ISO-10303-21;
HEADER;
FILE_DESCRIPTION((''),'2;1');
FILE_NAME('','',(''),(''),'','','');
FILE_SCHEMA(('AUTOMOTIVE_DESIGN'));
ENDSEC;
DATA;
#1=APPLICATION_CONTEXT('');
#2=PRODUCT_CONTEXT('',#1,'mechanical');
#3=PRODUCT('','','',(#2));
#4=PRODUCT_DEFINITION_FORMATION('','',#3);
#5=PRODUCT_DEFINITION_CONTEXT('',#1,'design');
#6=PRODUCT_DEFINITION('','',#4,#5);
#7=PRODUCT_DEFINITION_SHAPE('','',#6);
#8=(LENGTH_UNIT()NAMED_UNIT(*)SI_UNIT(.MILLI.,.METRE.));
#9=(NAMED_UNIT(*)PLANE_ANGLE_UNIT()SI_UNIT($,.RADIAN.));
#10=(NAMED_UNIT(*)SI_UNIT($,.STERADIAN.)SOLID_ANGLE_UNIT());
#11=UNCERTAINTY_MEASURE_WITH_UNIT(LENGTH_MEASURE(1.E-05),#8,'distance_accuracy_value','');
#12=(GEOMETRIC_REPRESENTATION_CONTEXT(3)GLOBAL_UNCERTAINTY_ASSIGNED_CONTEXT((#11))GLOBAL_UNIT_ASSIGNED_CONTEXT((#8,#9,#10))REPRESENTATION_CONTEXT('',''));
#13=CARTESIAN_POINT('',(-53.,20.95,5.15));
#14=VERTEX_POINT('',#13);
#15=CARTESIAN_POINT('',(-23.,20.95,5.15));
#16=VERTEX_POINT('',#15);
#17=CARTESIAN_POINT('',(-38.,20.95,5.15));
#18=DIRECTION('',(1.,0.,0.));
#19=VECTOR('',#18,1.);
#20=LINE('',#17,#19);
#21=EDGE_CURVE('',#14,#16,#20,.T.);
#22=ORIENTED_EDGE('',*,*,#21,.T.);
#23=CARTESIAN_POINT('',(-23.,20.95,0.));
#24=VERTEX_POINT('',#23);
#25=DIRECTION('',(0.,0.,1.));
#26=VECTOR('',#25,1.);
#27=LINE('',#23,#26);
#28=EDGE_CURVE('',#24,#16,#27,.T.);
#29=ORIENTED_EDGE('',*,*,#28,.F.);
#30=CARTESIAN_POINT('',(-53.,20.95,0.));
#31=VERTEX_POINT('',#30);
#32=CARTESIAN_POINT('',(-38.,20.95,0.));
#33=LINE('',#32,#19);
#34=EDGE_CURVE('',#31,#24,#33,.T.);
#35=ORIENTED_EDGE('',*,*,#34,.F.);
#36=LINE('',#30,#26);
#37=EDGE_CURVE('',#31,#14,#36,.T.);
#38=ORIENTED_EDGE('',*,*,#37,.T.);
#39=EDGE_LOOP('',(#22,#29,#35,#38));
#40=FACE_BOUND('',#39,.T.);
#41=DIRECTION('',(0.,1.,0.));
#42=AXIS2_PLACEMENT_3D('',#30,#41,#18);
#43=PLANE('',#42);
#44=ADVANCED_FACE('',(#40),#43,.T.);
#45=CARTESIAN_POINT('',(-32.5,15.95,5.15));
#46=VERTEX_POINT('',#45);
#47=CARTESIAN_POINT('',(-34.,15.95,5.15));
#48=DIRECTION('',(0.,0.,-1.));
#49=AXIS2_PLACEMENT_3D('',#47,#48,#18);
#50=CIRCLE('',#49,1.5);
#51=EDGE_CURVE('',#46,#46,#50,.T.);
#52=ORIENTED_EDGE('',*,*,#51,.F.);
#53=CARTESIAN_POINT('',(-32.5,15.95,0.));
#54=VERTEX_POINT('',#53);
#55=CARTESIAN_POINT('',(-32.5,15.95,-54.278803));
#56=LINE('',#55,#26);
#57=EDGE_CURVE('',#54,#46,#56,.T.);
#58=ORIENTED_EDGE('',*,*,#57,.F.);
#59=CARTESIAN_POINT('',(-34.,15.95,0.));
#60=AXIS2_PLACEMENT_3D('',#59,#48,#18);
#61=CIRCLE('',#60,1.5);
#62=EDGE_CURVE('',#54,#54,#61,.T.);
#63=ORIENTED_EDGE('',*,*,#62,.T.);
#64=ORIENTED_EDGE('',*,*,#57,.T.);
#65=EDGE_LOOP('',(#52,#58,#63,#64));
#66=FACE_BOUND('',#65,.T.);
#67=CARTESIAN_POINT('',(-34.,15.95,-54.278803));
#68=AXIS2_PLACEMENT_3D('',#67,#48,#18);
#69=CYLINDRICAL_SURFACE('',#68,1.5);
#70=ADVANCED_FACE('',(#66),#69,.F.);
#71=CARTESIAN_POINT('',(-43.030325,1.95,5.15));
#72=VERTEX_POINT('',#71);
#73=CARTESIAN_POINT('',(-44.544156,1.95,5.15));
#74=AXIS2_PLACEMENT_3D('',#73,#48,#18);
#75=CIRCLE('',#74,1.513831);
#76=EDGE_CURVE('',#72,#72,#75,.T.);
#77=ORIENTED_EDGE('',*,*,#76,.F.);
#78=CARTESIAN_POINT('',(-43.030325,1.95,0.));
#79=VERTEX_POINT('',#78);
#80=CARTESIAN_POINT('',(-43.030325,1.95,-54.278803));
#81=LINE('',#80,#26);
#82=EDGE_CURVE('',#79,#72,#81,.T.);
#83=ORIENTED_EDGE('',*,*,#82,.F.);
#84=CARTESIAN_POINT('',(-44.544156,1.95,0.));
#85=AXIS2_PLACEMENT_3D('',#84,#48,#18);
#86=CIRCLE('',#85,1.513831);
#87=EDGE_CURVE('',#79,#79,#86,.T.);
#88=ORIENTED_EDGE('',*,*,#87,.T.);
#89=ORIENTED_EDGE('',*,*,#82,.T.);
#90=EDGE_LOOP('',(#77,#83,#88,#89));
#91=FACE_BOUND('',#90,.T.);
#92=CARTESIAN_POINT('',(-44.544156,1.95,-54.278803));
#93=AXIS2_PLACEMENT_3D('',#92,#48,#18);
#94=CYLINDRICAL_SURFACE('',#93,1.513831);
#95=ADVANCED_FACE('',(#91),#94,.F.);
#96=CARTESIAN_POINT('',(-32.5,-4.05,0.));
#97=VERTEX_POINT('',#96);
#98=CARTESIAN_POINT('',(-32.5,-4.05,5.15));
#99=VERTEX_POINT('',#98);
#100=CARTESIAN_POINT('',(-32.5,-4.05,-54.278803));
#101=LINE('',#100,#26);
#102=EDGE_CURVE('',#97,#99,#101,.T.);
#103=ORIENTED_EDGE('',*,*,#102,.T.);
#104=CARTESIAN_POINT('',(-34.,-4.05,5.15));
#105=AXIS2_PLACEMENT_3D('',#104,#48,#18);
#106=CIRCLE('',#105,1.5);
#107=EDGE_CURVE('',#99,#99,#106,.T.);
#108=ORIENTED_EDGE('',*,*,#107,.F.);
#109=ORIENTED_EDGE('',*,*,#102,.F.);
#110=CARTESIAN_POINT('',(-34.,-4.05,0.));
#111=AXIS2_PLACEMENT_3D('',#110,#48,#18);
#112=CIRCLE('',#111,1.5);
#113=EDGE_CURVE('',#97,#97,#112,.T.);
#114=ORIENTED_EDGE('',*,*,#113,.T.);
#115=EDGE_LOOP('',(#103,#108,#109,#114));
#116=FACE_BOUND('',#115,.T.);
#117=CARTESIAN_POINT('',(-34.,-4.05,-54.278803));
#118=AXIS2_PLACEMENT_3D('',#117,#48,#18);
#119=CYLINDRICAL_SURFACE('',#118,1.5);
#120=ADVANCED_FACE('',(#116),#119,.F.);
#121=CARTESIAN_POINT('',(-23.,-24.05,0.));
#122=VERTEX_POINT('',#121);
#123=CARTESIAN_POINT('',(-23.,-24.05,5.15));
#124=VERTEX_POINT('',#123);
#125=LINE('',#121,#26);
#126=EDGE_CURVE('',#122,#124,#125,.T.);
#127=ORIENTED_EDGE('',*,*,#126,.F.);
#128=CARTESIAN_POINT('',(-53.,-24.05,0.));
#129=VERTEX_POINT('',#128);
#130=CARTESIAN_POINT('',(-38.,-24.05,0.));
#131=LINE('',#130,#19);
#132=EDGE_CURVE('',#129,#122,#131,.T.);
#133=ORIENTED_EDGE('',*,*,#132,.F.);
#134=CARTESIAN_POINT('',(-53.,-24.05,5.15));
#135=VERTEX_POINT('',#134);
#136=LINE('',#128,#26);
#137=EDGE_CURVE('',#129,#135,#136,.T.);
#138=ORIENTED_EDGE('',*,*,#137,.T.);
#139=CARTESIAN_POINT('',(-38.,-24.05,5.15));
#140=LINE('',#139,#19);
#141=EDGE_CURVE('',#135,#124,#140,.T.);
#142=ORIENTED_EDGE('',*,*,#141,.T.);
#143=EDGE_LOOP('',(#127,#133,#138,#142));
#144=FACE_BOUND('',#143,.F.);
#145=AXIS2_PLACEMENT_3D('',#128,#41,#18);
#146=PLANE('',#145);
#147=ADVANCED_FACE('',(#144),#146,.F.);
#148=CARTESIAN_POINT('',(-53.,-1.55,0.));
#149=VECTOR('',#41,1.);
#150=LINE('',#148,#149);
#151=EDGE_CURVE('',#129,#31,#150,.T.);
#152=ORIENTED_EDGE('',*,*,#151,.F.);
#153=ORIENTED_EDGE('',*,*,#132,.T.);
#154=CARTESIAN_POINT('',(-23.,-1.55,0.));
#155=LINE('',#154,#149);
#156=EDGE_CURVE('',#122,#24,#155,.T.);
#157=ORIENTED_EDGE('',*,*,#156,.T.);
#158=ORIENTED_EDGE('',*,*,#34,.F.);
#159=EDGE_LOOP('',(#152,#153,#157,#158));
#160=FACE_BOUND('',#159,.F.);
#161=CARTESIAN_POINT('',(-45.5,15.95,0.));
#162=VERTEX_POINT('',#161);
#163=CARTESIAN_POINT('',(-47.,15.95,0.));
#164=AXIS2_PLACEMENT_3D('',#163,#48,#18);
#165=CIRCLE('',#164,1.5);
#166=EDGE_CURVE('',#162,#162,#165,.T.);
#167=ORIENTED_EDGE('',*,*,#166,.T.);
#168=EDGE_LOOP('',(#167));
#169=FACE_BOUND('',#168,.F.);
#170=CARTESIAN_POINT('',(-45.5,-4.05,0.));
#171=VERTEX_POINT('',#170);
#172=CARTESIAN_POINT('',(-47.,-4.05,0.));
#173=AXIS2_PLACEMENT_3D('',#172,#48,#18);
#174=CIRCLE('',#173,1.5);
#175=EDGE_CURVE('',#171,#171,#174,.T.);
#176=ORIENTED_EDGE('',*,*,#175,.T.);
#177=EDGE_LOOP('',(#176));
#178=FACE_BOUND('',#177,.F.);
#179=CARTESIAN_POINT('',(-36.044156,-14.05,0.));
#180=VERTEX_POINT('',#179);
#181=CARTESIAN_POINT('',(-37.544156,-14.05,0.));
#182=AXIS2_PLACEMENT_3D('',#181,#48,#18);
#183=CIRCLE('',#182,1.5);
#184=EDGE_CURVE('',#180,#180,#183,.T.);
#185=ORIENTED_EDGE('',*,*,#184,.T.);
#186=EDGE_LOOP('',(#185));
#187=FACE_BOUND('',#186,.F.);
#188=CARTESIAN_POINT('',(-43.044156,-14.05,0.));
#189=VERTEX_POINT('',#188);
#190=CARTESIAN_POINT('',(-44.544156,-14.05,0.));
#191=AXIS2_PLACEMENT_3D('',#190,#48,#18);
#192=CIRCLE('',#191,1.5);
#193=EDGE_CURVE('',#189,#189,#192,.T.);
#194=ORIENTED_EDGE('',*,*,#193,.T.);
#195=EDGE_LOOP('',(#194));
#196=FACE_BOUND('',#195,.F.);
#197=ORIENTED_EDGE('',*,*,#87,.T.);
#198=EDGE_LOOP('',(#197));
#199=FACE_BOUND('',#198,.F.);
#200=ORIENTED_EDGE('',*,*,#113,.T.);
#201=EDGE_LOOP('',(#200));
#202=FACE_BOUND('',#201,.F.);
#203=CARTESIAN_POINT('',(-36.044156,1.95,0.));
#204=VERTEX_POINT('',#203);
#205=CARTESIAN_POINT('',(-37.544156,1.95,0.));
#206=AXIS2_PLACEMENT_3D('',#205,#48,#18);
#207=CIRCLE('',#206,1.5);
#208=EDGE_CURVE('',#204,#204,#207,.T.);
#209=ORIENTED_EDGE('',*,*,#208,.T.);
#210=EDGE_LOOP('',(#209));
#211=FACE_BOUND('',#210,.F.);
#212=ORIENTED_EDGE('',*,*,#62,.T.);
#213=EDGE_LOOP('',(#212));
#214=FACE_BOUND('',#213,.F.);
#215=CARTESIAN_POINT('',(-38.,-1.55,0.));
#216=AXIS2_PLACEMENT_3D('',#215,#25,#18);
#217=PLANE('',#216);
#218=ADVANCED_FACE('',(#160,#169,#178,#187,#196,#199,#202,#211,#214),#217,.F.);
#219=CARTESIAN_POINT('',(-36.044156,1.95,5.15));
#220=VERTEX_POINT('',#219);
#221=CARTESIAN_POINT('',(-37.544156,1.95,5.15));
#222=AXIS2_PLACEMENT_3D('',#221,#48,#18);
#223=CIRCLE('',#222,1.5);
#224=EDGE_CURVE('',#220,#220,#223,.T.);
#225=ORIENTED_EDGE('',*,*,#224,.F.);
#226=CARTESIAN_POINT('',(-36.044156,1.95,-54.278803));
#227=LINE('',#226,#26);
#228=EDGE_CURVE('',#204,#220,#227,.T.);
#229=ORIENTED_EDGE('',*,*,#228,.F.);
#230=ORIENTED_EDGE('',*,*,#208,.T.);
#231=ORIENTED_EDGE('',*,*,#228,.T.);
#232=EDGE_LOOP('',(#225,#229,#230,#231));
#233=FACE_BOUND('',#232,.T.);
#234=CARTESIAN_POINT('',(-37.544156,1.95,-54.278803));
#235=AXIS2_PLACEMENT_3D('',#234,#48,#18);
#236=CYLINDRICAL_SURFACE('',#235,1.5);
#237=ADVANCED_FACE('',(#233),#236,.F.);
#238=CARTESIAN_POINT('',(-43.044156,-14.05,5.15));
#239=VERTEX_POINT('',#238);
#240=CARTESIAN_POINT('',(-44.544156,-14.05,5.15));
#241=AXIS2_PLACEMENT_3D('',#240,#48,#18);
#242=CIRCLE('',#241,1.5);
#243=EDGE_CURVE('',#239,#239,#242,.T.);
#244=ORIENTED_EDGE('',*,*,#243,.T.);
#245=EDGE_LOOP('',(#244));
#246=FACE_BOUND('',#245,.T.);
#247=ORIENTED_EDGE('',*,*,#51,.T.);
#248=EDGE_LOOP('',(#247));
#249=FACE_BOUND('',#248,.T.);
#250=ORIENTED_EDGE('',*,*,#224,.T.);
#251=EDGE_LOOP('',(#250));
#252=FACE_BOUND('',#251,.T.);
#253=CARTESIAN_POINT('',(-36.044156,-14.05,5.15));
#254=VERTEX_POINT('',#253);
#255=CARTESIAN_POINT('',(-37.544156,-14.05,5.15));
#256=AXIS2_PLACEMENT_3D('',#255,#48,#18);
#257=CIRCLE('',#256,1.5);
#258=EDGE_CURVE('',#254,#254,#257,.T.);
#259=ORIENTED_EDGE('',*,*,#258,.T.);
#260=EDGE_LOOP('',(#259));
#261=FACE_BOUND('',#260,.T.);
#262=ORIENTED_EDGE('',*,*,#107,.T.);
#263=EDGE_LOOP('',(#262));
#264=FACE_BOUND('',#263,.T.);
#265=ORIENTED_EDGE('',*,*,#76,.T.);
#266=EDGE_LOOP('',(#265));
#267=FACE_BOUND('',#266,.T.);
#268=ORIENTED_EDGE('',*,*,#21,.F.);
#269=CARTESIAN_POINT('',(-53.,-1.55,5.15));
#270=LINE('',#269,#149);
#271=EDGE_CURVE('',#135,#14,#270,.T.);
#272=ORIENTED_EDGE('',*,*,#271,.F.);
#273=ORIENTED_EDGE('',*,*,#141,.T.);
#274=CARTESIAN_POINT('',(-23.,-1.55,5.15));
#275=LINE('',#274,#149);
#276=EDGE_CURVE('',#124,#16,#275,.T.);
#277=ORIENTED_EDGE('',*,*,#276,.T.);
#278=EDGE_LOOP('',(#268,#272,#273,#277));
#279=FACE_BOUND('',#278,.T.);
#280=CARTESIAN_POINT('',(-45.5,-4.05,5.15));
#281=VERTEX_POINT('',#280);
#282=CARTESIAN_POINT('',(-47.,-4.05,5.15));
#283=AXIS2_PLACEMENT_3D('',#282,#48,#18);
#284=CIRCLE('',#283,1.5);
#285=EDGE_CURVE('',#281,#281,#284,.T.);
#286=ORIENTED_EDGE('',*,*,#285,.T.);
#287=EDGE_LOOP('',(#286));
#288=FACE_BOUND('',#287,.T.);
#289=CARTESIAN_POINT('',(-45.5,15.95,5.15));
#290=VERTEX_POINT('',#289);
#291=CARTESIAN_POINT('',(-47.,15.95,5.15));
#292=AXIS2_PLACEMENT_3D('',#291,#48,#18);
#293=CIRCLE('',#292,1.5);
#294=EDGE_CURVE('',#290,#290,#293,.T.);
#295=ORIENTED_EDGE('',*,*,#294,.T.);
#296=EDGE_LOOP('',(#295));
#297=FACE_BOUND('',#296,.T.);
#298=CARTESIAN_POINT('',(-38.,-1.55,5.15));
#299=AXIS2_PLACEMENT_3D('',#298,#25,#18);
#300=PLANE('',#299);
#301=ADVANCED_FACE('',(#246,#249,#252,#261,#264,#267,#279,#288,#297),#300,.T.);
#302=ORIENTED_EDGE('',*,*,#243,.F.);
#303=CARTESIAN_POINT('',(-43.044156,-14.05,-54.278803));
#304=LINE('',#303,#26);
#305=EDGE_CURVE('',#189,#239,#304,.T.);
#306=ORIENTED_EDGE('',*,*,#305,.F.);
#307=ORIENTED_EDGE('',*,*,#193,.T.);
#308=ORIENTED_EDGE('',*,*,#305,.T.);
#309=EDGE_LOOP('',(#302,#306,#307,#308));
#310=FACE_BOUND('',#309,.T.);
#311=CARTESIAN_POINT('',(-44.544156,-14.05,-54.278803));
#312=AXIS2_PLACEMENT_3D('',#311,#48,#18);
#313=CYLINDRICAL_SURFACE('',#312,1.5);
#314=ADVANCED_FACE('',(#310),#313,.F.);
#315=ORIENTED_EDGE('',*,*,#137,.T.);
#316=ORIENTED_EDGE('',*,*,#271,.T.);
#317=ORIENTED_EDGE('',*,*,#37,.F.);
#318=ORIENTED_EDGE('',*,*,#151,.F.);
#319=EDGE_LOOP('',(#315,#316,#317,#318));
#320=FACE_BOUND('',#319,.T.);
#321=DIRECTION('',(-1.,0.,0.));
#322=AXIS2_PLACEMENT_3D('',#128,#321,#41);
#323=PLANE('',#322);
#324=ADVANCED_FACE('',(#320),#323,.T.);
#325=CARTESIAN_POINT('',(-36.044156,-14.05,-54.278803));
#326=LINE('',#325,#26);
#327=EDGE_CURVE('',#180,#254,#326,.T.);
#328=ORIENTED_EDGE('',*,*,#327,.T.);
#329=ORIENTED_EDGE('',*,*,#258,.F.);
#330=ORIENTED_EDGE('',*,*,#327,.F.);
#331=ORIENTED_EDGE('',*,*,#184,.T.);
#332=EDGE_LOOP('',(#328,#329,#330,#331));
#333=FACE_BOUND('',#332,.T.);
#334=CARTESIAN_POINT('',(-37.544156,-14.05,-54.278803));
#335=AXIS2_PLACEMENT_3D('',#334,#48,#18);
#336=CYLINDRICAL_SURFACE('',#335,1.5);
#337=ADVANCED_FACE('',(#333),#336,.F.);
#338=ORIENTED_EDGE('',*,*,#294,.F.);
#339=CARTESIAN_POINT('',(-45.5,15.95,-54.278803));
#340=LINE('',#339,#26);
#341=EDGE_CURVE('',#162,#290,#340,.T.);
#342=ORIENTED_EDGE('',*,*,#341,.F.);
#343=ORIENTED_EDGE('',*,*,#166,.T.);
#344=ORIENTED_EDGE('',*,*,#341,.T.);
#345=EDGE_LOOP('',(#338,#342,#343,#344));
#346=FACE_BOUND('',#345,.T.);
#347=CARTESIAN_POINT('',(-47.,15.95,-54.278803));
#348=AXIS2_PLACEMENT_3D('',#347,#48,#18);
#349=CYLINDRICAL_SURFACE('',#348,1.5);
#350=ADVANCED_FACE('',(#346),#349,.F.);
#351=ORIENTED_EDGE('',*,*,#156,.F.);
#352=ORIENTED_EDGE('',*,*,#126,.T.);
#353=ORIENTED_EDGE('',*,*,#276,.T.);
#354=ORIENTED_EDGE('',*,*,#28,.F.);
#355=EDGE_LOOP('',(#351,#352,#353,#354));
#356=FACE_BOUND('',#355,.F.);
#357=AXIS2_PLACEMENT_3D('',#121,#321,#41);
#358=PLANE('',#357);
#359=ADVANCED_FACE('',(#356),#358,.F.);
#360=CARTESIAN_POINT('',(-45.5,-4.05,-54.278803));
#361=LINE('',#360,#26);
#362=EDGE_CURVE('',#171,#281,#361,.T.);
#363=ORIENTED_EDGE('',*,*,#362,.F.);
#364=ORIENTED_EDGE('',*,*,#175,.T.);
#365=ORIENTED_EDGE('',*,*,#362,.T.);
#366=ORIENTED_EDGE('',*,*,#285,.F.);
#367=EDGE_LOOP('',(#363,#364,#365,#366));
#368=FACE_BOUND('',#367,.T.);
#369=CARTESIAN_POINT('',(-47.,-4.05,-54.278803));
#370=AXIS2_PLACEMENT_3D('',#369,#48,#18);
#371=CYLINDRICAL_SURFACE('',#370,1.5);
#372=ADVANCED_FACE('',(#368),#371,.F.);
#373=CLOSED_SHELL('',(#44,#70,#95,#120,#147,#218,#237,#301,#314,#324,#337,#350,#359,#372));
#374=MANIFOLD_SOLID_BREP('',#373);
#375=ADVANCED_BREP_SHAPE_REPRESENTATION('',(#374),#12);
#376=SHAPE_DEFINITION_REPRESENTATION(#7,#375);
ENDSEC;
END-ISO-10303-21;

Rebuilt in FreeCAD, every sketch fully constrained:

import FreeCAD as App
import Part
import Sketcher

V = App.Vector

doc = App.newDocument("Part")
body = doc.addObject("PartDesign::Body", "Body")

sketch1 = body.newObject("Sketcher::SketchObject", "Sketch")
sketch1.AttachmentSupport = (doc.getObject("XY_Plane"), [""])
sketch1.MapMode = "FlatFace"
sketch1.addGeometry([
    Part.LineSegment(V(-53, 20.95, 0), V(-53, -24.05, 0)),
    Part.LineSegment(V(-53, -24.05, 0), V(-23, -24.05, 0)),
    Part.LineSegment(V(-23, -24.05, 0), V(-23, 20.95, 0)),
    Part.LineSegment(V(-23, 20.95, 0), V(-53, 20.95, 0)),
], False)
sketch1.addConstraint([
    Sketcher.Constraint("Coincident", 0, 2, 1, 1),
    Sketcher.Constraint("Coincident", 1, 2, 2, 1),
    Sketcher.Constraint("Coincident", 2, 2, 3, 1),
    Sketcher.Constraint("Coincident", 3, 2, 0, 1),
    Sketcher.Constraint("Vertical", 0),
    Sketcher.Constraint("Horizontal", 1),
    Sketcher.Constraint("Vertical", 2),
    Sketcher.Constraint("Horizontal", 3),
    Sketcher.Constraint("DistanceX", 1, 1, 1, 2, 30.0),
    Sketcher.Constraint("DistanceY", 0, 2, 0, 1, 45.0),
    Sketcher.Constraint("DistanceX", 0, 2, -1, 1, 53.0),
    Sketcher.Constraint("DistanceY", 0, 2, -1, 1, 24.05),
])
pad1 = body.newObject("PartDesign::Pad", "Pad")
pad1.Profile = sketch1
pad1.Length = 5.15

sketch2 = body.newObject("Sketcher::SketchObject", "Sketch001")
sketch2.AttachmentSupport = (doc.getObject("XY_Plane"), [""])
sketch2.MapMode = "FlatFace"
sketch2.AttachmentOffset = App.Placement(V(0, 0, 5.15), App.Rotation())
sketch2.addGeometry([
    Part.Circle(V(-34, 15.95, 0), V(0, 0, 1), 1.5),
    Part.Circle(V(-47, 15.95, 0), V(0, 0, 1), 1.5),
    Part.Circle(V(-34, -4.05, 0), V(0, 0, 1), 1.5),
    Part.Circle(V(-47, -4.05, 0), V(0, 0, 1), 1.5),
], False)
sketch2.addConstraint([
    Sketcher.Constraint("Equal", 0, 1),
    Sketcher.Constraint("Equal", 1, 2),
    Sketcher.Constraint("Equal", 2, 3),
    Sketcher.Constraint("Horizontal", 0, 3, 1, 3),
    Sketcher.Constraint("Horizontal", 2, 3, 3, 3),
    Sketcher.Constraint("Vertical", 0, 3, 2, 3),
    Sketcher.Constraint("Vertical", 1, 3, 3, 3),
    Sketcher.Constraint("Diameter", 0, 3.0),
    Sketcher.Constraint("DistanceX", 0, 3, -1, 1, 34.0),
    Sketcher.Constraint("DistanceX", 1, 3, -1, 1, 47.0),
    Sketcher.Constraint("DistanceY", 2, 3, 0, 3, 20.0),
    Sketcher.Constraint("DistanceY", -1, 1, 0, 3, 15.95),
])
pocket1 = body.newObject("PartDesign::Pocket", "Pocket")
pocket1.Profile = sketch2
pocket1.Type = "ThroughAll"
pocket1.Midplane = True

sketch3 = body.newObject("Sketcher::SketchObject", "Sketch002")
sketch3.AttachmentSupport = (doc.getObject("XY_Plane"), [""])
sketch3.MapMode = "FlatFace"
sketch3.AttachmentOffset = App.Placement(V(0, 0, 5.15), App.Rotation())
sketch3.addGeometry([
    Part.Circle(V(-44.544156, -14.05, 0), V(0, 0, 1), 1.5),
    Part.Circle(V(-37.544156, -14.05, 0), V(0, 0, 1), 1.5),
    Part.Circle(V(-44.544156, 1.95, 0), V(0, 0, 1), 1.513831),
    Part.Circle(V(-37.544156, 1.95, 0), V(0, 0, 1), 1.5),
], False)
sketch3.addConstraint([
    Sketcher.Constraint("Equal", 0, 1),
    Sketcher.Constraint("Equal", 1, 3),
    Sketcher.Constraint("Horizontal", 0, 3, 1, 3),
    Sketcher.Constraint("Horizontal", 2, 3, 3, 3),
    Sketcher.Constraint("Vertical", 0, 3, 2, 3),
    Sketcher.Constraint("Vertical", 1, 3, 3, 3),
    Sketcher.Constraint("Diameter", 0, 3.0),
    Sketcher.Constraint("DistanceX", 0, 3, 1, 3, 7.0),
    Sketcher.Constraint("DistanceY", 0, 3, 2, 3, 16.0),
    Sketcher.Constraint("DistanceY", 0, 3, -1, 1, 14.05),
    Sketcher.Constraint("Diameter", 2, 3.027662),
    Sketcher.Constraint("DistanceX", 0, 3, -1, 1, 44.544156),
])
pocket2 = body.newObject("PartDesign::Pocket", "Pocket001")
pocket2.Profile = sketch3
pocket2.Type = "ThroughAll"
pocket2.Midplane = True

doc.recompute()
